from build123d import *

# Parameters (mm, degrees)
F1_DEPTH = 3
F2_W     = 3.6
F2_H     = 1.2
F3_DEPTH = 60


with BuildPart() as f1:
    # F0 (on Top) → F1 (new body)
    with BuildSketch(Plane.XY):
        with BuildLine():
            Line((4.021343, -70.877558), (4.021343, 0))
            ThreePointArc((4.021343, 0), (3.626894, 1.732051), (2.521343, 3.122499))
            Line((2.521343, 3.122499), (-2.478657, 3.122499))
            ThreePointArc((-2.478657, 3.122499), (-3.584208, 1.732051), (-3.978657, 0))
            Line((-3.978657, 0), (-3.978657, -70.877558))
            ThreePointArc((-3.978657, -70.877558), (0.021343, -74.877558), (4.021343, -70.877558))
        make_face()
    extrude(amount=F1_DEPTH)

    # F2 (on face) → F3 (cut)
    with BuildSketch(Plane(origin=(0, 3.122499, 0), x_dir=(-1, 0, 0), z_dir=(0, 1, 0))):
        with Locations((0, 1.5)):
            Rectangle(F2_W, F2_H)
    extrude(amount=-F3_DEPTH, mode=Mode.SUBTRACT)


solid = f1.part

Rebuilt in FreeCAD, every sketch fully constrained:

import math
import FreeCAD as App
import Part
import Sketcher

V = App.Vector
Q = App.Units.Quantity


def add_polygon(sketch, points):
    """Adds a closed chain of lines whose ends are joined by coincident constraints."""
    first, n = sketch.GeometryCount, len(points)
    for a, b in zip(points, points[1:] + points[:1]):
        sketch.addGeometry(Part.LineSegment(App.Vector(*a, 0), App.Vector(*b, 0)), False)
    for i in range(n):
        sketch.addConstraint(Sketcher.Constraint("Coincident", first + i, 2, first + (i + 1) % n, 1))

doc = App.newDocument("Part")
body = doc.addObject("PartDesign::Body", "Body")

# Sketch on XY plane
sketch1 = doc.addObject("Sketcher::SketchObject", "Sketch")
body.addObject(sketch1)
sketch1.AttachmentSupport = (doc.XY_Plane, [""])
sketch1.MapMode = "FlatFace"
sketch1.addGeometry([
    Part.LineSegment(V(4.021343, -70.877558, 0), V(4.021343, 0, 0)),  # 0
    Part.ArcOfCircle(Part.Circle(V(0.021341, -0.000001, 0), V(0, 0, 1), 4.000002), math.radians(0.00001), math.radians(51.317802)),  # 1
    Part.LineSegment(V(2.521343, 3.122499, 0), V(-2.478657, 3.122499, 0)),  # 2
    Part.ArcOfCircle(Part.Circle(V(0.021345, -0.000001, 0), V(0, 0, 1), 4.000002), math.radians(128.682198), math.radians(179.99999)),  # 3
    Part.LineSegment(V(-3.978657, 0, 0), V(-3.978657, -70.877558, 0)),  # 4
    Part.ArcOfCircle(Part.Circle(V(0.021343, -70.877558, 0), V(0, 0, 1), 4), math.radians(180), math.radians(360)),  # 5
], False)
sketch1.addConstraint([
    Sketcher.Constraint("Tangent", 0, 2, 1, 1),
    Sketcher.Constraint("Coincident", 1, 2, 2, 1),
    Sketcher.Constraint("Coincident", 2, 2, 3, 1),
    Sketcher.Constraint("Tangent", 3, 2, 4, 1),
    Sketcher.Constraint("Tangent", 4, 2, 5, 1),
    Sketcher.Constraint("Tangent", 5, 2, 0, 1),
    Sketcher.Constraint("Vertical", 0),
    Sketcher.Constraint("Horizontal", 2),
    Sketcher.Constraint("Vertical", 4),
    Sketcher.Constraint("Coincident", 3, 3, 1, 3),
    Sketcher.Constraint("Equal", 1, 3),
    Sketcher.Constraint("PointOnObject", 1, 3, -1),
    Sketcher.Constraint("Radius", 1, Q("4.000002 mm")),
    Sketcher.Constraint("DistanceX", 2, 2, 2, 1, Q("5 mm")),
    Sketcher.Constraint("DistanceY", 0, 1, 0, 2, Q("70.877558 mm")),
    Sketcher.Constraint("DistanceX", -1, 1, 1, 3, Q("0.021341 mm")),
])
pad1 = doc.addObject("PartDesign::Pad", "Pad")
body.addObject(pad1)
pad1.Profile = sketch1
pad1.Length = 3

# Sketch on XZ plane
sketch2 = doc.addObject("Sketcher::SketchObject", "Sketch001")
body.addObject(sketch2)
sketch2.AttachmentSupport = (doc.XZ_Plane, [""])
sketch2.MapMode = "FlatFace"
sketch2.AttachmentOffset = App.Placement(V(0, 0, -3.122499), App.Rotation())
add_polygon(sketch2, [(1.8, 2.1), (1.8, 0.9), (-1.8, 0.9), (-1.8, 2.1)])  # lines 0-3
sketch2.addConstraint([
    Sketcher.Constraint("Vertical", 0),
    Sketcher.Constraint("Horizontal", 1),
    Sketcher.Constraint("Vertical", 2),
    Sketcher.Constraint("Horizontal", 3),
    Sketcher.Constraint("DistanceX", 1, 2, 1, 1, Q("3.6 mm")),
    Sketcher.Constraint("DistanceY", 0, 2, 0, 1, Q("1.2 mm")),
    Sketcher.Constraint("DistanceX", -1, 1, 0, 2, Q("1.8 mm")),
    Sketcher.Constraint("DistanceY", -1, 1, 0, 2, Q("0.9 mm")),
])
pocket1 = doc.addObject("PartDesign::Pocket", "Pocket")
body.addObject(pocket1)
pocket1.Profile = sketch2
pocket1.Length = 60
pocket1.Reversed = True

doc.recompute()
